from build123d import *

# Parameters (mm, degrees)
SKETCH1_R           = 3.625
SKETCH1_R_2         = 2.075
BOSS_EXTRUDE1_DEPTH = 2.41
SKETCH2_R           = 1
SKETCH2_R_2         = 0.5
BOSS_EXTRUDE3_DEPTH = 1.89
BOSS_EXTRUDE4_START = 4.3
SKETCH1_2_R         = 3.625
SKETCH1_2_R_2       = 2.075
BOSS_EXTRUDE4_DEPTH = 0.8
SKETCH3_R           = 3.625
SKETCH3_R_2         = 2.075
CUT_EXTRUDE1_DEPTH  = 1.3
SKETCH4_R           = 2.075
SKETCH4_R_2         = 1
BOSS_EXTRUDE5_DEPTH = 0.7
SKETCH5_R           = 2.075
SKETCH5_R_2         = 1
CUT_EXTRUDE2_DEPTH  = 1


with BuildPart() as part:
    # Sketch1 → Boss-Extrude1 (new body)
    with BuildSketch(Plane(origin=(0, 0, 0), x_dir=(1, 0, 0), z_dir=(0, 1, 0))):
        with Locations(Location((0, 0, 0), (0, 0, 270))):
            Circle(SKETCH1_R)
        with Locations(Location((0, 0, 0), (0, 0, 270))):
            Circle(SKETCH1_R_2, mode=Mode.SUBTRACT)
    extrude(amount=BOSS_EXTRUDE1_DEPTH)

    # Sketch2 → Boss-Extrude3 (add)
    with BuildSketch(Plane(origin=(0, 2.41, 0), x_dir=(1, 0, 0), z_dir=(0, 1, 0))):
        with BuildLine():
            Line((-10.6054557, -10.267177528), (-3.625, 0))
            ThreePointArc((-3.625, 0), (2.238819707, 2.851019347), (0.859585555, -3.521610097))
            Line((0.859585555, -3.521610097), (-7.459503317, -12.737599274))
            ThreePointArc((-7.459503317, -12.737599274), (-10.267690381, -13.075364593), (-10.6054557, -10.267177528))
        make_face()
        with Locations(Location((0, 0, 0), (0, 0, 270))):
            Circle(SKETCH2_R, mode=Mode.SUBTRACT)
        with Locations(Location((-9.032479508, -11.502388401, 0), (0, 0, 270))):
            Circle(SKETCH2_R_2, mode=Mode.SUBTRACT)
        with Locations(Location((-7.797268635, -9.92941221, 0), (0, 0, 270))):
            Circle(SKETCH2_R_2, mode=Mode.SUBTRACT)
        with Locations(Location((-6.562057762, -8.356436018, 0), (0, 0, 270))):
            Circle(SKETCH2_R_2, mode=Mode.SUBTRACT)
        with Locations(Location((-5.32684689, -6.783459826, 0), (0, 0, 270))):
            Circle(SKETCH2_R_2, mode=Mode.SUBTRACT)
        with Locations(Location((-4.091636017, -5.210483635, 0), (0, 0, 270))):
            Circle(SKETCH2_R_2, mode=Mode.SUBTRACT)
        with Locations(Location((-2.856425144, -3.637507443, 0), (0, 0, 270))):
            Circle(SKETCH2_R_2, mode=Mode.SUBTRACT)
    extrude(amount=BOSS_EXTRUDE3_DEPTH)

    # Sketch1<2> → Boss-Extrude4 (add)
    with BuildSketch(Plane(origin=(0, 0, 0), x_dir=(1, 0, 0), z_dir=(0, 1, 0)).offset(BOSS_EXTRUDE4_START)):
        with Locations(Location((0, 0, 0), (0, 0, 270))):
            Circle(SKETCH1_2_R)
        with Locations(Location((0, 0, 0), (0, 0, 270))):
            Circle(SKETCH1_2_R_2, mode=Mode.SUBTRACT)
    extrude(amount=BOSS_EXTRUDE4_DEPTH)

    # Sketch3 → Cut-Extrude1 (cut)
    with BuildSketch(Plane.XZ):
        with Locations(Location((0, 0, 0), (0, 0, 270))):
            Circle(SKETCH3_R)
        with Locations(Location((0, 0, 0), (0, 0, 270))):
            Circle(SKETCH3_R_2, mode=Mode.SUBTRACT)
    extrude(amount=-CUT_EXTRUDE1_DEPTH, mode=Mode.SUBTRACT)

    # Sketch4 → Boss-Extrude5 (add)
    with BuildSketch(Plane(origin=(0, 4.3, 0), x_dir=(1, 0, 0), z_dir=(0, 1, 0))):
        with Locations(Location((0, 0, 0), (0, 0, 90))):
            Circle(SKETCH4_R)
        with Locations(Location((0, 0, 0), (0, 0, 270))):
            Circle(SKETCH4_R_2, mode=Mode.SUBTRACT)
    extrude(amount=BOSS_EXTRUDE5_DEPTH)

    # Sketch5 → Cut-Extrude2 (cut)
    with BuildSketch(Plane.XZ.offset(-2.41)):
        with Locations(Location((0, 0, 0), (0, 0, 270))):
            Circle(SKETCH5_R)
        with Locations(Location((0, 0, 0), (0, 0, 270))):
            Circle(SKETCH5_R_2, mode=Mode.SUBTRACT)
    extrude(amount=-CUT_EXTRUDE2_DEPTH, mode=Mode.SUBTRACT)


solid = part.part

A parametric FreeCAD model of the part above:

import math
import FreeCAD as App
import Part
import Sketcher

V = App.Vector

doc = App.newDocument("Part")
body = doc.addObject("PartDesign::Body", "Body")

# Sketch on XZ plane
sketch1 = body.newObject("Sketcher::SketchObject", "Sketch")
sketch1.AttachmentSupport = (doc.getObject("XZ_Plane"), [""])
sketch1.MapMode = "FlatFace"
sketch1.addGeometry(Part.Circle(V(0, 0, 0), V(0, 0, 1), 3.6), False)
sketch1.addGeometry(Part.Circle(V(0, 0, 0), V(0, 0, 1), 2.1), False)
sketch1.addConstraint(Sketcher.Constraint("Coincident", 0, 3, -1, 1))
sketch1.addConstraint(Sketcher.Constraint("Coincident", 1, 3, -1, 1))
sketch1.addConstraint(Sketcher.Constraint("Diameter", 0, 7.25))
sketch1.addConstraint(Sketcher.Constraint("Diameter", 1, 4.15))
pad1 = body.newObject("PartDesign::Pad", "Pad")
pad1.Profile = sketch1
pad1.Length = 2.41
pad1.Reversed = True

# Sketch on XZ plane
sketch2 = body.newObject("Sketcher::SketchObject", "Sketch001")
sketch2.AttachmentSupport = (doc.getObject("XZ_Plane"), [""])
sketch2.MapMode = "FlatFace"
sketch2.AttachmentOffset = App.Placement(V(0, 0, -2.41), App.Rotation())
sketch2.addGeometry(Part.LineSegment(V(-3.6, 0, 0), V(-10.6, 10.3, 0)), False)
sketch2.addGeometry(Part.ArcOfCircle(Part.Circle(V(-9, 11.5, 0), V(0, 0, 1), 2), math.radians(38), math.radians(218)), False)
sketch2.addGeometry(Part.LineSegment(V(-7.5, 12.7, 0), V(0.9, 3.5, 0)), False)
sketch2.addGeometry(Part.ArcOfCircle(Part.Circle(V(0, 0, 0), V(0, 0, 1), 3.6), math.radians(180), math.radians(436)), False)
sketch2.addGeometry(Part.Circle(V(-9, 11.5, 0), V(0, 0, 1), 0.5), False)
sketch2.addGeometry(Part.Circle(V(-7.8, 9.9, 0), V(0, 0, 1), 0.5), False)
sketch2.addGeometry(Part.Circle(V(-6.6, 8.4, 0), V(0, 0, 1), 0.5), False)
sketch2.addGeometry(Part.Circle(V(-5.3, 6.8, 0), V(0, 0, 1), 0.5), False)
sketch2.addGeometry(Part.Circle(V(-4.1, 5.2, 0), V(0, 0, 1), 0.5), False)
sketch2.addGeometry(Part.Circle(V(-2.9, 3.6, 0), V(0, 0, 1), 0.5), False)
sketch2.addGeometry(Part.Circle(V(0, 0, 0), V(0, 0, 1), 1), False)
sketch2.addConstraint(Sketcher.Constraint("Coincident", 0, 2, 1, 2))
sketch2.addConstraint(Sketcher.Constraint("Coincident", 1, 1, 2, 1))
sketch2.addConstraint(Sketcher.Constraint("Coincident", 2, 2, 3, 2))
sketch2.addConstraint(Sketcher.Constraint("Coincident", 3, 1, 0, 1))
sketch2.addConstraint(Sketcher.Constraint("Coincident", 3, 3, -1, 1))
sketch2.addConstraint(Sketcher.Constraint("Coincident", 10, 3, -1, 1))
sketch2.addConstraint(Sketcher.Constraint("Coincident", 4, 3, 1, 3))
sketch2.addConstraint(Sketcher.Constraint("Equal", 4, 5))
sketch2.addConstraint(Sketcher.Constraint("Equal", 5, 6))
sketch2.addConstraint(Sketcher.Constraint("Equal", 6, 7))
sketch2.addConstraint(Sketcher.Constraint("Equal", 7, 8))
sketch2.addConstraint(Sketcher.Constraint("Equal", 8, 9))
sketch2.addConstraint(Sketcher.Constraint("PointOnObject", 3, 1, -1))
sketch2.addConstraint(Sketcher.Constraint("Equal", 0, 2))
sketch2.addConstraint(Sketcher.Constraint("Diameter", 4, 1.0))
sketch2.addConstraint(Sketcher.Constraint("Diameter", 10, 2.0))
sketch2.addConstraint(Sketcher.Constraint("Radius", 1, 2.0))
sketch2.addConstraint(Sketcher.Constraint("Radius", 3, 3.625))
sketch2.addConstraint(Sketcher.Constraint("DistanceY", -1, 1, 1, 1, 12.737599))
sketch2.addConstraint(Sketcher.Constraint("Distance", 0, 12.415381))
sketch2.addConstraint(Sketcher.Constraint("DistanceX", 1, 3, -1, 1, 9.03248))
sketch2.addConstraint(Sketcher.Constraint("DistanceY", -1, 1, 1, 3, 11.502388))
sketch2.addConstraint(Sketcher.Constraint("DistanceX", 5, 3, -1, 1, 7.797269))
sketch2.addConstraint(Sketcher.Constraint("DistanceY", -1, 1, 7, 3, 6.78346))
sketch2.addConstraint(Sketcher.Constraint("DistanceX", 5, 3, 6, 3, 1.235211))
sketch2.addConstraint(Sketcher.Constraint("DistanceX", 6, 3, 7, 3, 1.235211))
sketch2.addConstraint(Sketcher.Constraint("DistanceX", 7, 3, 8, 3, 1.235211))
sketch2.addConstraint(Sketcher.Constraint("DistanceY", 8, 3, 5, 3, 4.718929))
sketch2.addConstraint(Sketcher.Constraint("DistanceX", 8, 3, 9, 3, 1.235211))
sketch2.addConstraint(Sketcher.Constraint("DistanceY", 9, 3, 6, 3, 4.718929))
sketch2.addConstraint(Sketcher.Constraint("DistanceY", 6, 3, 0, 2, 1.910742))
sketch2.addConstraint(Sketcher.Constraint("DistanceY", -1, 1, 5, 3, 9.929412))
pad2 = body.newObject("PartDesign::Pad", "Pad001")
pad2.Profile = sketch2
pad2.Length = 1.89
pad2.Reversed = True

# Sketch on XZ plane
sketch3 = body.newObject("Sketcher::SketchObject", "Sketch002")
sketch3.AttachmentSupport = (doc.getObject("XZ_Plane"), [""])
sketch3.MapMode = "FlatFace"
sketch3.AttachmentOffset = App.Placement(V(0, 0, -4.3), App.Rotation())
sketch3.addGeometry(Part.Circle(V(0, 0, 0), V(0, 0, 1), 3.6), False)
sketch3.addGeometry(Part.Circle(V(0, 0, 0), V(0, 0, 1), 2.1), False)
sketch3.addConstraint(Sketcher.Constraint("Coincident", 0, 3, -1, 1))
sketch3.addConstraint(Sketcher.Constraint("Coincident", 1, 3, -1, 1))
sketch3.addConstraint(Sketcher.Constraint("Diameter", 0, 7.25))
sketch3.addConstraint(Sketcher.Constraint("Diameter", 1, 4.15))
pad3 = body.newObject("PartDesign::Pad", "Pad002")
pad3.Profile = sketch3
pad3.Length = 0.8
pad3.Reversed = True

# Sketch on XZ plane
sketch4 = body.newObject("Sketcher::SketchObject", "Sketch003")
sketch4.AttachmentSupport = (doc.getObject("XZ_Plane"), [""])
sketch4.MapMode = "FlatFace"
sketch4.addGeometry(Part.Circle(V(0, 0, 0), V(0, 0, 1), 3.6), False)
sketch4.addGeometry(Part.Circle(V(0, 0, 0), V(0, 0, 1), 2.1), False)
sketch4.addConstraint(Sketcher.Constraint("Coincident", 0, 3, -1, 1))
sketch4.addConstraint(Sketcher.Constraint("Coincident", 1, 3, -1, 1))
sketch4.addConstraint(Sketcher.Constraint("Diameter", 0, 7.25))
sketch4.addConstraint(Sketcher.Constraint("Diameter", 1, 4.15))
pocket1 = body.newObject("PartDesign::Pocket", "Pocket")
pocket1.Profile = sketch4
pocket1.Length = 1.3

# Sketch on XZ plane
sketch5 = body.newObject("Sketcher::SketchObject", "Sketch004")
sketch5.AttachmentSupport = (doc.getObject("XZ_Plane"), [""])
sketch5.MapMode = "FlatFace"
sketch5.AttachmentOffset = App.Placement(V(0, 0, -4.3), App.Rotation())
sketch5.addGeometry(Part.Circle(V(0, 0, 0), V(0, 0, 1), 2.1), False)
sketch5.addGeometry(Part.Circle(V(0, 0, 0), V(0, 0, 1), 1), False)
sketch5.addConstraint(Sketcher.Constraint("Coincident", 0, 3, -1, 1))
sketch5.addConstraint(Sketcher.Constraint("Coincident", 1, 3, -1, 1))
sketch5.addConstraint(Sketcher.Constraint("Diameter", 1, 2.0))
sketch5.addConstraint(Sketcher.Constraint("Diameter", 0, 4.15))
pad4 = body.newObject("PartDesign::Pad", "Pad003")
pad4.Profile = sketch5
pad4.Length = 0.7
pad4.Reversed = True

# Sketch on XZ plane
sketch6 = body.newObject("Sketcher::SketchObject", "Sketch005")
sketch6.AttachmentSupport = (doc.getObject("XZ_Plane"), [""])
sketch6.MapMode = "FlatFace"
sketch6.AttachmentOffset = App.Placement(V(0, 0, -2.41), App.Rotation())
sketch6.addGeometry(Part.Circle(V(0, 0, 0), V(0, 0, 1), 2.1), False)
sketch6.addGeometry(Part.Circle(V(0, 0, 0), V(0, 0, 1), 1), False)
sketch6.addConstraint(Sketcher.Constraint("Coincident", 0, 3, -1, 1))
sketch6.addConstraint(Sketcher.Constraint("Coincident", 1, 3, -1, 1))
sketch6.addConstraint(Sketcher.Constraint("Diameter", 1, 2.0))
sketch6.addConstraint(Sketcher.Constraint("Diameter", 0, 4.15))
pocket2 = body.newObject("PartDesign::Pocket", "Pocket001")
pocket2.Profile = sketch6
pocket2.Length = 1

doc.recompute()
